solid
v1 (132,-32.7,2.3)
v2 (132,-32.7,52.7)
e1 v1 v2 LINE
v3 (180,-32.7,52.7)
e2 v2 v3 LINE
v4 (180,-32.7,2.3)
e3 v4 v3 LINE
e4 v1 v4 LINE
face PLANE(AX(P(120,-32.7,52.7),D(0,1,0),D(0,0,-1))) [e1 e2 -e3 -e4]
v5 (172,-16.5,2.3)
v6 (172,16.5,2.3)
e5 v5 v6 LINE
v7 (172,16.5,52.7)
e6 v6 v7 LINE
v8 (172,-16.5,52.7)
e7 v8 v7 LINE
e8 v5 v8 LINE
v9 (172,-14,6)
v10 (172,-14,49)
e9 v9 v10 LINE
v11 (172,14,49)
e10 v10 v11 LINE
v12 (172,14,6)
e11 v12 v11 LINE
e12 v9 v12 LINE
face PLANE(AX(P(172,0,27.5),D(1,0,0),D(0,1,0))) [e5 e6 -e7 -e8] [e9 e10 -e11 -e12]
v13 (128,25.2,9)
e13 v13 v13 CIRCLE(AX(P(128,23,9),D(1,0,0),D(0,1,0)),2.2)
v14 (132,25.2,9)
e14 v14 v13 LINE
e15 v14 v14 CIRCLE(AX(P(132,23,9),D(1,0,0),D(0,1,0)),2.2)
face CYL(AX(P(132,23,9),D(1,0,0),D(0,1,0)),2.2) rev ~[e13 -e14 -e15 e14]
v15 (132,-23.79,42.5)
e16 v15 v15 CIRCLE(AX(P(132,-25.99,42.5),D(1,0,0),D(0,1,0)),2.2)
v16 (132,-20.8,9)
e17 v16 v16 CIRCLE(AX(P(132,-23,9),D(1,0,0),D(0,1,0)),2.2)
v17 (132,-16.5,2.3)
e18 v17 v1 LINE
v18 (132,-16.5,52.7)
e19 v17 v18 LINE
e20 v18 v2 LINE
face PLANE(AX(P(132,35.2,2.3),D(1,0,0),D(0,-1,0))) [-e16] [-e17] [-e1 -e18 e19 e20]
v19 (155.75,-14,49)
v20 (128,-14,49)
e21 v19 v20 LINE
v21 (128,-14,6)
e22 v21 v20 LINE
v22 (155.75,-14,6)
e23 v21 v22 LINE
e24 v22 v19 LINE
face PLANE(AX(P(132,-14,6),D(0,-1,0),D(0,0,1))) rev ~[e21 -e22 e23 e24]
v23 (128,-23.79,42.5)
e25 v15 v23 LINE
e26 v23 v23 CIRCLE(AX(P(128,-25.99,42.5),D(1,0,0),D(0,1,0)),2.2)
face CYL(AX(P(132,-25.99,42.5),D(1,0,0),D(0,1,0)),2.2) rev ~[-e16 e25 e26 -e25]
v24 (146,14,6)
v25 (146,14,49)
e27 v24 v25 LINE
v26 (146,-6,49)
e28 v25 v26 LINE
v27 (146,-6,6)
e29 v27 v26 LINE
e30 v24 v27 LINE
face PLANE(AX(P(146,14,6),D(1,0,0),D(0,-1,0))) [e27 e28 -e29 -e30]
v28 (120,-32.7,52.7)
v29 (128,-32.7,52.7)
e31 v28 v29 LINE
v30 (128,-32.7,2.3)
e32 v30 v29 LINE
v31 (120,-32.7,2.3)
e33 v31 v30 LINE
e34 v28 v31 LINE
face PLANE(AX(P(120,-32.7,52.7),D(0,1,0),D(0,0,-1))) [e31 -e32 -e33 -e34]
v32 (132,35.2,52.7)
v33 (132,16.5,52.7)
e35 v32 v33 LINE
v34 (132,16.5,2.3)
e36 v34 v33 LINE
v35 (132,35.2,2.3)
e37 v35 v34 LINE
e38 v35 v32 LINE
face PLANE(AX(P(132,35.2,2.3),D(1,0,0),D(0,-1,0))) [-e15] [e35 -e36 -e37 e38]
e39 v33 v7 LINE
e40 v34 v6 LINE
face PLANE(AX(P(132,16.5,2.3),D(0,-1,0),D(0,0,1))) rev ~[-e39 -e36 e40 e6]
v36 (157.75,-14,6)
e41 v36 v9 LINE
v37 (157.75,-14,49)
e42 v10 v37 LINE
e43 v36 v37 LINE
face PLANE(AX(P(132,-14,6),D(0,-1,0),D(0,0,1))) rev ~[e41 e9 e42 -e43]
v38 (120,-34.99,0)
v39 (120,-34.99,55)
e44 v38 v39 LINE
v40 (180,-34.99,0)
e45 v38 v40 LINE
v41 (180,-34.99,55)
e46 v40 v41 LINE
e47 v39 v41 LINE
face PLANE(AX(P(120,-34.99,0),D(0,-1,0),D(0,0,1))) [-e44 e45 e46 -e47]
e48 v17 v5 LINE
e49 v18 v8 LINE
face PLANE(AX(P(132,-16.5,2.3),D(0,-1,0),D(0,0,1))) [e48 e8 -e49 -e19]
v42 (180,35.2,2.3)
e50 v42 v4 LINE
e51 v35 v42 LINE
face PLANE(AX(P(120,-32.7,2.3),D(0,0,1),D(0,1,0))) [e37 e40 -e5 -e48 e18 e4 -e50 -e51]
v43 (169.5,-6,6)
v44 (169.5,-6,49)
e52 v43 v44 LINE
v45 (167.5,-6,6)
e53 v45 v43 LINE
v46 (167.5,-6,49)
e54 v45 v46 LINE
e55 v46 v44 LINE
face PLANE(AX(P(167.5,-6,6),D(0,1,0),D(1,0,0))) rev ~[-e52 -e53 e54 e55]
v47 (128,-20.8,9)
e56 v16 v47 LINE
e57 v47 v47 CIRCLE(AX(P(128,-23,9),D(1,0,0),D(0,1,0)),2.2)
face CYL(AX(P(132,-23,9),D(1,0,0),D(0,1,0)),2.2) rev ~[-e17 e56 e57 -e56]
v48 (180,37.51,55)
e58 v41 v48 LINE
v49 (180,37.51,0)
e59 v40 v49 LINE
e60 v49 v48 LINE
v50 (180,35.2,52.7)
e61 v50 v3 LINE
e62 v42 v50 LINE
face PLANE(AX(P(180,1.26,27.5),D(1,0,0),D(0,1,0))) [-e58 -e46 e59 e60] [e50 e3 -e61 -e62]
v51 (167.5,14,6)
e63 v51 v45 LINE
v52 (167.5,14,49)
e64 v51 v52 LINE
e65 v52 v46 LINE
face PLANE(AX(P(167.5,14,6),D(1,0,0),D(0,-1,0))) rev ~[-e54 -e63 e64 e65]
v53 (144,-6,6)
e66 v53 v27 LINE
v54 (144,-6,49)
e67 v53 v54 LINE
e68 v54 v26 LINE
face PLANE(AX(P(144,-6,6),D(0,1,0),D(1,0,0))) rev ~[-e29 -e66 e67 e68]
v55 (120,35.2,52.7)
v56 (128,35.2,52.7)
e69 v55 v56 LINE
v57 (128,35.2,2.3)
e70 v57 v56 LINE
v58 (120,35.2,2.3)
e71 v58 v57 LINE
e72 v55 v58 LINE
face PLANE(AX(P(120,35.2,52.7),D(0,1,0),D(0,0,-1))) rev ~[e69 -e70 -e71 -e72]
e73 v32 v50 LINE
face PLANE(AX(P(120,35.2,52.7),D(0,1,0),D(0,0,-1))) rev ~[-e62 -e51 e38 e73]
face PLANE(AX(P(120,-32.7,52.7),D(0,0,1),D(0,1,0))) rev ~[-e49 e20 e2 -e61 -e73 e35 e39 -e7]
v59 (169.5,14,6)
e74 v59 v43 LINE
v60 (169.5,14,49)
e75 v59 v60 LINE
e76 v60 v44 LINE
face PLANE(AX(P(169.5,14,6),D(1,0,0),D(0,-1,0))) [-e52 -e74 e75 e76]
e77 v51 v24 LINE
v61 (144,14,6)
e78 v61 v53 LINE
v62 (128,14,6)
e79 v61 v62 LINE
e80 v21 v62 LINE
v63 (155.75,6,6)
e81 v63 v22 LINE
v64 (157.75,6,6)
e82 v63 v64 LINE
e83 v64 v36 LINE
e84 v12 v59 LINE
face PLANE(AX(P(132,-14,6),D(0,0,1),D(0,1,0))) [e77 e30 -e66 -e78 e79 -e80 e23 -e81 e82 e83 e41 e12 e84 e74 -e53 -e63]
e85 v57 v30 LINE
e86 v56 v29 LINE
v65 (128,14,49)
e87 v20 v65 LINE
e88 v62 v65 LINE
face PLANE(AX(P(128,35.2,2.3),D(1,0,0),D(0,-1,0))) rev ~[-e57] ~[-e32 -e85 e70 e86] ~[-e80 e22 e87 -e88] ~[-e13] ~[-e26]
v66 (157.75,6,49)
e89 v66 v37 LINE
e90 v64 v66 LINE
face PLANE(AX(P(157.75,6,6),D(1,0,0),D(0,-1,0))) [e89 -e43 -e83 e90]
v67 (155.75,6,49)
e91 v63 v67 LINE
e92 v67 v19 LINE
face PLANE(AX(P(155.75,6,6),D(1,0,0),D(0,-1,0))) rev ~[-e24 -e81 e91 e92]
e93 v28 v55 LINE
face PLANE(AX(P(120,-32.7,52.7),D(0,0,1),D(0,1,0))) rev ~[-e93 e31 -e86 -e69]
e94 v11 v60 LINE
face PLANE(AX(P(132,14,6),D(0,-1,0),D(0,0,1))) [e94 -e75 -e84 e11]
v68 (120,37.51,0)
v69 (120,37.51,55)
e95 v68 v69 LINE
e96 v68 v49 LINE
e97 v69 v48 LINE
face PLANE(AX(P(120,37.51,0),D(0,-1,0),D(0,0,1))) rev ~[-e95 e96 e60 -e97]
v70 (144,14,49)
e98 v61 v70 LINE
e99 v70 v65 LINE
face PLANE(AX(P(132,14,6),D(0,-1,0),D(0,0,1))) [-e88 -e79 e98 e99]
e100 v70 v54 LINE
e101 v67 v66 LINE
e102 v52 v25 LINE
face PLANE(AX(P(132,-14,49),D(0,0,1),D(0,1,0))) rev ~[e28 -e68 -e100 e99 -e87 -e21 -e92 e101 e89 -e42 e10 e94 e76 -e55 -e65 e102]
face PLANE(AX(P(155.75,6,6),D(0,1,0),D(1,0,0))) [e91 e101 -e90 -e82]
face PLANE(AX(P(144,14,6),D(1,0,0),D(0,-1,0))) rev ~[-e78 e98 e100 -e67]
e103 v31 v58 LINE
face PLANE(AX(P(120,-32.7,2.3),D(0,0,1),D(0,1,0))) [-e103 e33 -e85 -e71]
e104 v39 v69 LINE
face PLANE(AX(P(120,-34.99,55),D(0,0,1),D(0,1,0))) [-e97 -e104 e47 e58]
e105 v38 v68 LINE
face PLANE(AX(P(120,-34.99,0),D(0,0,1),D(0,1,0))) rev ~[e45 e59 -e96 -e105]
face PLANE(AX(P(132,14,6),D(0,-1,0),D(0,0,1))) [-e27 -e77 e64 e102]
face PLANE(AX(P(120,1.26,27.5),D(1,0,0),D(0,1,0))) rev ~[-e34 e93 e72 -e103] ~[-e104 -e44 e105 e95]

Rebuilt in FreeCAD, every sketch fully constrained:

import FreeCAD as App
import Part
import Sketcher
from FreeCAD import Vector
Q = App.Units.Quantity

doc = App.newDocument("Part")
params = doc.addObject("Spreadsheet::Sheet", "Params")
for row, (alias, value) in enumerate([
    ("sketch1_height", "55 mm"),
    ("sketch1_width", "72.5 mm"),
    ("pad1_length", "60 mm"),
    ("sketch2_width", "67.9 mm"),
    ("sketch2_height", "50.4 mm"),
    ("sketch3_width", "4 mm"),
    ("sketch3_height", "67.9 mm"),
    ("pad2_length", "50.4 mm"),
    ("sketch4_diameter", "4.4 mm"),
    ("pocket2_length", "25 mm"),
    ("sketch5_width", "28 mm"),
    ("sketch5_height", "43 mm"),
    ("pocket3_length", "4 mm"),
    ("sketch6_width", "33 mm"),
    ("sketch6_width2", "28 mm"),
    ("sketch6_height", "43 mm"),
    ("sketch6_height2", "50.4 mm"),
    ("pad3_length", "40 mm"),
    ("sketch7_width", "2 mm"),
    ("sketch7_height", "20 mm"),
    ("pad4_length", "43 mm"),
], start=1):
    params.set(f"A{row}", alias)
    params.set(f"B{row}", "=" + value)
    params.setAlias(f"B{row}", alias)

body = doc.addObject("PartDesign::Body", "Body")

# Sketch on YZ plane
sketch1 = doc.addObject("Sketcher::SketchObject", "Sketch")
body.addObject(sketch1)
sketch1.AttachmentSupport = (doc.YZ_Plane, [""])
sketch1.MapMode = "FlatFace"
sketch1.AttachmentOffset = App.Placement(Vector(0, 0, 120), App.Rotation())
sketch1.addGeometry(Part.LineSegment(Vector(-35, 55, 0), Vector(-35, 0, 0)), False)
sketch1.addGeometry(Part.LineSegment(Vector(-35, 0, 0), Vector(38, 0, 0)), False)
sketch1.addGeometry(Part.LineSegment(Vector(38, 0, 0), Vector(38, 55, 0)), False)
sketch1.addGeometry(Part.LineSegment(Vector(38, 55, 0), Vector(-35, 55, 0)), False)
sketch1.addConstraint(Sketcher.Constraint("Coincident", 0, 2, 1, 1))
sketch1.addConstraint(Sketcher.Constraint("Coincident", 1, 2, 2, 1))
sketch1.addConstraint(Sketcher.Constraint("Coincident", 2, 2, 3, 1))
sketch1.addConstraint(Sketcher.Constraint("Coincident", 3, 2, 0, 1))
sketch1.addConstraint(Sketcher.Constraint("Vertical", 0))
sketch1.addConstraint(Sketcher.Constraint("Horizontal", 1))
sketch1.addConstraint(Sketcher.Constraint("Vertical", 2))
sketch1.addConstraint(Sketcher.Constraint("Horizontal", 3))
sketch1.addConstraint(Sketcher.Constraint("PointOnObject", 0, 2, -1))
sketch1.addConstraint(Sketcher.Constraint("DistanceY", 0, 2, 0, 1, Q("55 mm")))
sketch1.addConstraint(Sketcher.Constraint("DistanceX", 1, 1, 1, 2, Q("72.5 mm")))
sketch1.addConstraint(Sketcher.Constraint("DistanceX", 0, 2, -1, 1, Q("34.99 mm")))
sketch1.setExpression("Constraints[9]", "Params.sketch1_height")
sketch1.setExpression("Constraints[10]", "Params.sketch1_width")
pad1 = doc.addObject("PartDesign::Pad", "Pad")
body.addObject(pad1)
pad1.Profile = sketch1
pad1.setExpression("Length", "Params.pad1_length")

# Sketch on YZ plane
sketch2 = doc.addObject("Sketcher::SketchObject", "Sketch001")
body.addObject(sketch2)
sketch2.AttachmentSupport = (doc.YZ_Plane, [""])
sketch2.MapMode = "FlatFace"
sketch2.AttachmentOffset = App.Placement(Vector(0, 0, 120), App.Rotation())
sketch2.addGeometry(Part.LineSegment(Vector(-33, 2, 0), Vector(-33, 53, 0)), False)
sketch2.addGeometry(Part.LineSegment(Vector(-33, 53, 0), Vector(35, 53, 0)), False)
sketch2.addGeometry(Part.LineSegment(Vector(35, 53, 0), Vector(35, 2, 0)), False)
sketch2.addGeometry(Part.LineSegment(Vector(35, 2, 0), Vector(-33, 2, 0)), False)
sketch2.addConstraint(Sketcher.Constraint("Coincident", 0, 2, 1, 1))
sketch2.addConstraint(Sketcher.Constraint("Coincident", 1, 2, 2, 1))
sketch2.addConstraint(Sketcher.Constraint("Coincident", 2, 2, 3, 1))
sketch2.addConstraint(Sketcher.Constraint("Coincident", 3, 2, 0, 1))
sketch2.addConstraint(Sketcher.Constraint("Vertical", 0))
sketch2.addConstraint(Sketcher.Constraint("Horizontal", 1))
sketch2.addConstraint(Sketcher.Constraint("Vertical", 2))
sketch2.addConstraint(Sketcher.Constraint("Horizontal", 3))
sketch2.addConstraint(Sketcher.Constraint("DistanceX", 1, 1, 1, 2, Q("67.9 mm")))
sketch2.addConstraint(Sketcher.Constraint("DistanceY", 0, 1, 0, 2, Q("50.4 mm")))
sketch2.addConstraint(Sketcher.Constraint("DistanceX", 0, 2, -1, 1, Q("32.7 mm")))
sketch2.addConstraint(Sketcher.Constraint("DistanceY", -1, 1, 0, 2, Q("52.7 mm")))
sketch2.setExpression("Constraints[8]", "Params.sketch2_width")
sketch2.setExpression("Constraints[9]", "Params.sketch2_height")
pocket1 = doc.addObject("PartDesign::Pocket", "Pocket")
body.addObject(pocket1)
pocket1.Profile = sketch2
pocket1.Type = "ThroughAll"
pocket1.Reversed = True

# Sketch on XY plane
sketch3 = doc.addObject("Sketcher::SketchObject", "Sketch002")
body.addObject(sketch3)
sketch3.AttachmentSupport = (doc.XY_Plane, [""])
sketch3.MapMode = "FlatFace"
sketch3.AttachmentOffset = App.Placement(Vector(0, 0, 2.3), App.Rotation())
sketch3.addGeometry(Part.LineSegment(Vector(132, 35.2, 0), Vector(128, 35.2, 0)), False)
sketch3.addGeometry(Part.LineSegment(Vector(128, 35.2, 0), Vector(128, -32.7, 0)), False)
sketch3.addGeometry(Part.LineSegment(Vector(128, -32.7, 0), Vector(132, -32.7, 0)), False)
sketch3.addGeometry(Part.LineSegment(Vector(132, -32.7, 0), Vector(132, 35.2, 0)), False)
sketch3.addConstraint(Sketcher.Constraint("Coincident", 0, 2, 1, 1))
sketch3.addConstraint(Sketcher.Constraint("Coincident", 1, 2, 2, 1))
sketch3.addConstraint(Sketcher.Constraint("Coincident", 2, 2, 3, 1))
sketch3.addConstraint(Sketcher.Constraint("Coincident", 3, 2, 0, 1))
sketch3.addConstraint(Sketcher.Constraint("Horizontal", 0))
sketch3.addConstraint(Sketcher.Constraint("Vertical", 1))
sketch3.addConstraint(Sketcher.Constraint("Horizontal", 2))
sketch3.addConstraint(Sketcher.Constraint("Vertical", 3))
sketch3.addConstraint(Sketcher.Constraint("DistanceX", 0, 2, 0, 1, Q("4 mm")))
sketch3.addConstraint(Sketcher.Constraint("DistanceY", 1, 2, 1, 1, Q("67.9 mm")))
sketch3.addConstraint(Sketcher.Constraint("DistanceX", -1, 1, 0, 2, Q("128 mm")))
sketch3.addConstraint(Sketcher.Constraint("DistanceY", -1, 1, 0, 2, Q("35.2 mm")))
sketch3.setExpression("Constraints[8]", "Params.sketch3_width")
sketch3.setExpression("Constraints[9]", "Params.sketch3_height")
pad2 = doc.addObject("PartDesign::Pad", "Pad001")
body.addObject(pad2)
pad2.Profile = sketch3
pad2.setExpression("Length", "Params.pad2_length")

# Sketch on YZ plane
sketch4 = doc.addObject("Sketcher::SketchObject", "Sketch003")
body.addObject(sketch4)
sketch4.AttachmentSupport = (doc.YZ_Plane, [""])
sketch4.MapMode = "FlatFace"
sketch4.AttachmentOffset = App.Placement(Vector(0, 0, 132), App.Rotation())
sketch4.addGeometry(Part.Circle(Vector(-26, 42.5, 0), Vector(0, 0, 1), 2.2), False)
sketch4.addGeometry(Part.Circle(Vector(-23, 9, 0), Vector(0, 0, 1), 2.2), False)
sketch4.addGeometry(Part.Circle(Vector(23, 9, 0), Vector(0, 0, 1), 2.2), False)
sketch4.addConstraint(Sketcher.Constraint("Equal", 0, 1))
sketch4.addConstraint(Sketcher.Constraint("Equal", 1, 2))
sketch4.addConstraint(Sketcher.Constraint("Symmetric", 1, 3, 2, 3, -2))
sketch4.addConstraint(Sketcher.Constraint("Diameter", 0, Q("4.4 mm")))
sketch4.addConstraint(Sketcher.Constraint("DistanceX", 1, 3, -1, 1, Q("23 mm")))
sketch4.addConstraint(Sketcher.Constraint("DistanceY", -1, 1, 1, 3, Q("9 mm")))
sketch4.addConstraint(Sketcher.Constraint("DistanceY", -1, 1, 0, 3, Q("42.5 mm")))
sketch4.addConstraint(Sketcher.Constraint("DistanceX", 0, 3, -1, 1, Q("25.99 mm")))
sketch4.setExpression("Constraints[3]", "Params.sketch4_diameter")
pocket2 = doc.addObject("PartDesign::Pocket", "Pocket001")
body.addObject(pocket2)
pocket2.Profile = sketch4
pocket2.setExpression("Length", "Params.pocket2_length")

# Sketch on YZ plane
sketch5 = doc.addObject("Sketcher::SketchObject", "Sketch004")
body.addObject(sketch5)
sketch5.AttachmentSupport = (doc.YZ_Plane, [""])
sketch5.MapMode = "FlatFace"
sketch5.AttachmentOffset = App.Placement(Vector(0, 0, 132), App.Rotation())
sketch5.addGeometry(Part.LineSegment(Vector(-14, 49, 0), Vector(-14, 6, 0)), False)
sketch5.addGeometry(Part.LineSegment(Vector(-14, 6, 0), Vector(14, 6, 0)), False)
sketch5.addGeometry(Part.LineSegment(Vector(14, 6, 0), Vector(14, 49, 0)), False)
sketch5.addGeometry(Part.LineSegment(Vector(14, 49, 0), Vector(-14, 49, 0)), False)
sketch5.addConstraint(Sketcher.Constraint("Coincident", 0, 2, 1, 1))
sketch5.addConstraint(Sketcher.Constraint("Coincident", 1, 2, 2, 1))
sketch5.addConstraint(Sketcher.Constraint("Coincident", 2, 2, 3, 1))
sketch5.addConstraint(Sketcher.Constraint("Coincident", 3, 2, 0, 1))
sketch5.addConstraint(Sketcher.Constraint("Vertical", 0))
sketch5.addConstraint(Sketcher.Constraint("Horizontal", 1))
sketch5.addConstraint(Sketcher.Constraint("Vertical", 2))
sketch5.addConstraint(Sketcher.Constraint("Horizontal", 3))
sketch5.addConstraint(Sketcher.Constraint("DistanceX", 1, 1, 1, 2, Q("28 mm")))
sketch5.addConstraint(Sketcher.Constraint("DistanceY", 0, 2, 0, 1, Q("43 mm")))
sketch5.addConstraint(Sketcher.Constraint("DistanceX", 0, 2, -1, 1, Q("14 mm")))
sketch5.addConstraint(Sketcher.Constraint("DistanceY", -1, 1, 0, 2, Q("6 mm")))
sketch5.setExpression("Constraints[8]", "Params.sketch5_width")
sketch5.setExpression("Constraints[9]", "Params.sketch5_height")
pocket3 = doc.addObject("PartDesign::Pocket", "Pocket002")
body.addObject(pocket3)
pocket3.Profile = sketch5
pocket3.setExpression("Length", "Params.pocket3_length")

# Sketch on YZ plane
sketch6 = doc.addObject("Sketcher::SketchObject", "Sketch005")
body.addObject(sketch6)
sketch6.AttachmentSupport = (doc.YZ_Plane, [""])
sketch6.MapMode = "FlatFace"
sketch6.AttachmentOffset = App.Placement(Vector(0, 0, 132), App.Rotation())
sketch6.addGeometry(Part.LineSegment(Vector(-16, 53, 0), Vector(-16, 2, 0)), False)
sketch6.addGeometry(Part.LineSegment(Vector(-16, 2, 0), Vector(16, 2, 0)), False)
sketch6.addGeometry(Part.LineSegment(Vector(16, 2, 0), Vector(16, 53, 0)), False)
sketch6.addGeometry(Part.LineSegment(Vector(16, 53, 0), Vector(-16, 53, 0)), False)
sketch6.addGeometry(Part.LineSegment(Vector(14, 6, 0), Vector(-14, 6, 0)), False)
sketch6.addGeometry(Part.LineSegment(Vector(-14, 6, 0), Vector(-14, 49, 0)), False)
sketch6.addGeometry(Part.LineSegment(Vector(-14, 49, 0), Vector(14, 49, 0)), False)
sketch6.addGeometry(Part.LineSegment(Vector(14, 49, 0), Vector(14, 6, 0)), False)
sketch6.addConstraint(Sketcher.Constraint("Coincident", 0, 2, 1, 1))
sketch6.addConstraint(Sketcher.Constraint("Coincident", 1, 2, 2, 1))
sketch6.addConstraint(Sketcher.Constraint("Coincident", 2, 2, 3, 1))
sketch6.addConstraint(Sketcher.Constraint("Coincident", 3, 2, 0, 1))
sketch6.addConstraint(Sketcher.Constraint("Coincident", 4, 2, 5, 1))
sketch6.addConstraint(Sketcher.Constraint("Coincident", 5, 2, 6, 1))
sketch6.addConstraint(Sketcher.Constraint("Coincident", 6, 2, 7, 1))
sketch6.addConstraint(Sketcher.Constraint("Coincident", 7, 2, 4, 1))
sketch6.addConstraint(Sketcher.Constraint("Vertical", 0))
sketch6.addConstraint(Sketcher.Constraint("Horizontal", 1))
sketch6.addConstraint(Sketcher.Constraint("Vertical", 2))
sketch6.addConstraint(Sketcher.Constraint("Horizontal", 3))
sketch6.addConstraint(Sketcher.Constraint("Horizontal", 4))
sketch6.addConstraint(Sketcher.Constraint("Vertical", 5))
sketch6.addConstraint(Sketcher.Constraint("Horizontal", 6))
sketch6.addConstraint(Sketcher.Constraint("Vertical", 7))
sketch6.addConstraint(Sketcher.Constraint("DistanceX", 1, 1, 1, 2, Q("33 mm")))
sketch6.addConstraint(Sketcher.Constraint("DistanceX", 4, 2, 4, 1, Q("28 mm")))
sketch6.addConstraint(Sketcher.Constraint("DistanceY", 5, 1, 5, 2, Q("43 mm")))
sketch6.addConstraint(Sketcher.Constraint("DistanceY", 0, 2, 0, 1, Q("50.4 mm")))
sketch6.addConstraint(Sketcher.Constraint("DistanceX", 4, 2, -1, 1, Q("14 mm")))
sketch6.addConstraint(Sketcher.Constraint("DistanceY", -1, 1, 4, 2, Q("6 mm")))
sketch6.addConstraint(Sketcher.Constraint("DistanceX", 0, 2, -1, 1, Q("16.5 mm")))
sketch6.addConstraint(Sketcher.Constraint("DistanceY", -1, 1, 0, 2, Q("2.3 mm")))
sketch6.setExpression("Constraints[16]", "Params.sketch6_width")
sketch6.setExpression("Constraints[17]", "Params.sketch6_width2")
sketch6.setExpression("Constraints[18]", "Params.sketch6_height")
sketch6.setExpression("Constraints[19]", "Params.sketch6_height2")
pad3 = doc.addObject("PartDesign::Pad", "Pad002")
body.addObject(pad3)
pad3.Profile = sketch6
pad3.setExpression("Length", "Params.pad3_length")

# Sketch on XY plane
sketch7 = doc.addObject("Sketcher::SketchObject", "Sketch006")
body.addObject(sketch7)
sketch7.AttachmentSupport = (doc.XY_Plane, [""])
sketch7.MapMode = "FlatFace"
sketch7.AttachmentOffset = App.Placement(Vector(0, 0, 6), App.Rotation())
sketch7.addGeometry(Part.LineSegment(Vector(169.5, 14, 0), Vector(167.5, 14, 0)), False)
sketch7.addGeometry(Part.LineSegment(Vector(167.5, 14, 0), Vector(167.5, -6, 0)), False)
sketch7.addGeometry(Part.LineSegment(Vector(167.5, -6, 0), Vector(169.5, -6, 0)), False)
sketch7.addGeometry(Part.LineSegment(Vector(169.5, -6, 0), Vector(169.5, 14, 0)), False)
sketch7.addGeometry(Part.LineSegment(Vector(157.8, 6, 0), Vector(155.8, 6, 0)), False)
sketch7.addGeometry(Part.LineSegment(Vector(155.8, 6, 0), Vector(155.8, -14, 0)), False)
sketch7.addGeometry(Part.LineSegment(Vector(155.8, -14, 0), Vector(157.8, -14, 0)), False)
sketch7.addGeometry(Part.LineSegment(Vector(157.8, -14, 0), Vector(157.8, 6, 0)), False)
sketch7.addGeometry(Part.LineSegment(Vector(146, 14, 0), Vector(144, 14, 0)), False)
sketch7.addGeometry(Part.LineSegment(Vector(144, 14, 0), Vector(144, -6, 0)), False)
sketch7.addGeometry(Part.LineSegment(Vector(144, -6, 0), Vector(146, -6, 0)), False)
sketch7.addGeometry(Part.LineSegment(Vector(146, -6, 0), Vector(146, 14, 0)), False)
sketch7.addConstraint(Sketcher.Constraint("Coincident", 0, 2, 1, 1))
sketch7.addConstraint(Sketcher.Constraint("Coincident", 1, 2, 2, 1))
sketch7.addConstraint(Sketcher.Constraint("Coincident", 2, 2, 3, 1))
sketch7.addConstraint(Sketcher.Constraint("Coincident", 3, 2, 0, 1))
sketch7.addConstraint(Sketcher.Constraint("Coincident", 4, 2, 5, 1))
sketch7.addConstraint(Sketcher.Constraint("Coincident", 5, 2, 6, 1))
sketch7.addConstraint(Sketcher.Constraint("Coincident", 6, 2, 7, 1))
sketch7.addConstraint(Sketcher.Constraint("Coincident", 7, 2, 4, 1))
sketch7.addConstraint(Sketcher.Constraint("Coincident", 8, 2, 9, 1))
sketch7.addConstraint(Sketcher.Constraint("Coincident", 9, 2, 10, 1))
sketch7.addConstraint(Sketcher.Constraint("Coincident", 10, 2, 11, 1))
sketch7.addConstraint(Sketcher.Constraint("Coincident", 11, 2, 8, 1))
sketch7.addConstraint(Sketcher.Constraint("Horizontal", 0))
sketch7.addConstraint(Sketcher.Constraint("Vertical", 1))
sketch7.addConstraint(Sketcher.Constraint("Horizontal", 2))
sketch7.addConstraint(Sketcher.Constraint("Vertical", 3))
sketch7.addConstraint(Sketcher.Constraint("Horizontal", 4))
sketch7.addConstraint(Sketcher.Constraint("Vertical", 5))
sketch7.addConstraint(Sketcher.Constraint("Horizontal", 6))
sketch7.addConstraint(Sketcher.Constraint("Vertical", 7))
sketch7.addConstraint(Sketcher.Constraint("Horizontal", 8))
sketch7.addConstraint(Sketcher.Constraint("Vertical", 9))
sketch7.addConstraint(Sketcher.Constraint("Horizontal", 10))
sketch7.addConstraint(Sketcher.Constraint("Vertical", 11))
sketch7.addConstraint(Sketcher.Constraint("Horizontal", 3, 2, 8, 2))
sketch7.addConstraint(Sketcher.Constraint("Horizontal", 2, 2, 9, 2))
sketch7.addConstraint(Sketcher.Constraint("Equal", 2, 4))
sketch7.addConstraint(Sketcher.Constraint("Equal", 6, 8))
sketch7.addConstraint(Sketcher.Constraint("Equal", 3, 5))
sketch7.addConstraint(Sketcher.Constraint("DistanceX", 0, 2, 0, 1, Q("2 mm")))
sketch7.addConstraint(Sketcher.Constraint("DistanceY", 1, 2, 1, 1, Q("20 mm")))
sketch7.addConstraint(Sketcher.Constraint("DistanceY", -1, 1, 0, 2, Q("14 mm")))
sketch7.addConstraint(Sketcher.Constraint("DistanceY", -1, 1, 4, 2, Q("6 mm")))
sketch7.addConstraint(Sketcher.Constraint("DistanceX", -1, 1, 8, 2, Q("144 mm")))
sketch7.addConstraint(Sketcher.Constraint("DistanceX", -1, 1, 0, 2, Q("167.5 mm")))
sketch7.addConstraint(Sketcher.Constraint("DistanceX", -1, 1, 4, 2, Q("155.75 mm")))
sketch7.setExpression("Constraints[29]", "Params.sketch7_width")
sketch7.setExpression("Constraints[30]", "Params.sketch7_height")
pad4 = doc.addObject("PartDesign::Pad", "Pad003")
body.addObject(pad4)
pad4.Profile = sketch7
pad4.setExpression("Length", "Params.pad4_length")

doc.recompute()
